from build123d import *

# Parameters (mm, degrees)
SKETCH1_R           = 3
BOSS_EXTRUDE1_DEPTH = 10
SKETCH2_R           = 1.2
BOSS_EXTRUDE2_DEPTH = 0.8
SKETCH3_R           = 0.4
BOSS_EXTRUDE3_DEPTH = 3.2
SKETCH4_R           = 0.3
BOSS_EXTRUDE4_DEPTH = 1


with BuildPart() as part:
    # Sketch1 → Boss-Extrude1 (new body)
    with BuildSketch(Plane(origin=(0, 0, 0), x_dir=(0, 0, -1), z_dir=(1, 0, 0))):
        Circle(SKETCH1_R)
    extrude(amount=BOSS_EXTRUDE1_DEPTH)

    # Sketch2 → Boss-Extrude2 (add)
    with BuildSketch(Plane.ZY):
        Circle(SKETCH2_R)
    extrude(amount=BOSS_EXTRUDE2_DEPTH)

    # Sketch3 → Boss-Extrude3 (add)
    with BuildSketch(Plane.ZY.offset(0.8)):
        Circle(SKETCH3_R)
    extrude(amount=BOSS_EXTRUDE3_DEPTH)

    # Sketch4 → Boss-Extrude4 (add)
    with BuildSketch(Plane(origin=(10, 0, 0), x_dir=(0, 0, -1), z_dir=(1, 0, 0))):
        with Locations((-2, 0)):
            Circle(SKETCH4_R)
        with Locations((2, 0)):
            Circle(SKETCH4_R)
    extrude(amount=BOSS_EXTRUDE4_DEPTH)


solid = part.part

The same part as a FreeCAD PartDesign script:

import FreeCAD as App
import Part
import Sketcher

V = App.Vector
Q = App.Units.Quantity

doc = App.newDocument("Part")
params = doc.addObject("Spreadsheet::Sheet", "Params")
for row, (alias, value) in enumerate([
    ("sketch1_diameter", "6 mm"),
    ("pad1_length", "10 mm"),
    ("sketch2_diameter", "2.4 mm"),
    ("pad2_length", "0.8 mm"),
    ("sketch3_diameter", "0.8 mm"),
    ("pad3_length", "3.2 mm"),
    ("sketch4_diameter", "0.6 mm"),
    ("pad4_length", "1 mm"),
], start=1):
    params.set(f"A{row}", alias)
    params.set(f"B{row}", "=" + value)
    params.setAlias(f"B{row}", alias)

body = doc.addObject("PartDesign::Body", "Body")

# Sketch on YZ plane
sketch1 = doc.addObject("Sketcher::SketchObject", "Sketch")
body.addObject(sketch1)
sketch1.AttachmentSupport = (doc.YZ_Plane, [""])
sketch1.MapMode = "FlatFace"
sketch1.addGeometry(Part.Circle(V(0, 0, 0), V(0, 0, 1), 3), False)
sketch1.addConstraint(Sketcher.Constraint("Coincident", 0, 3, -1, 1))
sketch1.addConstraint(Sketcher.Constraint("Diameter", 0, Q("6 mm")))
sketch1.setExpression("Constraints[1]", "Params.sketch1_diameter")
pad1 = doc.addObject("PartDesign::Pad", "Pad")
body.addObject(pad1)
pad1.Profile = sketch1
pad1.setExpression("Length", "Params.pad1_length")

# Sketch on YZ plane
sketch2 = doc.addObject("Sketcher::SketchObject", "Sketch001")
body.addObject(sketch2)
sketch2.AttachmentSupport = (doc.YZ_Plane, [""])
sketch2.MapMode = "FlatFace"
sketch2.addGeometry(Part.Circle(V(0, 0, 0), V(0, 0, 1), 1.2), False)
sketch2.addConstraint(Sketcher.Constraint("Coincident", 0, 3, -1, 1))
sketch2.addConstraint(Sketcher.Constraint("Diameter", 0, Q("2.4 mm")))
sketch2.setExpression("Constraints[1]", "Params.sketch2_diameter")
pad2 = doc.addObject("PartDesign::Pad", "Pad001")
body.addObject(pad2)
pad2.Profile = sketch2
pad2.setExpression("Length", "Params.pad2_length")
pad2.Reversed = True

# Sketch on YZ plane
sketch3 = doc.addObject("Sketcher::SketchObject", "Sketch002")
body.addObject(sketch3)
sketch3.AttachmentSupport = (doc.YZ_Plane, [""])
sketch3.MapMode = "FlatFace"
sketch3.AttachmentOffset = App.Placement(V(0, 0, -0.8), App.Rotation())
sketch3.addGeometry(Part.Circle(V(0, 0, 0), V(0, 0, 1), 0.4), False)
sketch3.addConstraint(Sketcher.Constraint("Coincident", 0, 3, -1, 1))
sketch3.addConstraint(Sketcher.Constraint("Diameter", 0, Q("0.8 mm")))
sketch3.setExpression("Constraints[1]", "Params.sketch3_diameter")
pad3 = doc.addObject("PartDesign::Pad", "Pad002")
body.addObject(pad3)
pad3.Profile = sketch3
pad3.setExpression("Length", "Params.pad3_length")
pad3.Reversed = True

# Sketch on YZ plane
sketch4 = doc.addObject("Sketcher::SketchObject", "Sketch003")
body.addObject(sketch4)
sketch4.AttachmentSupport = (doc.YZ_Plane, [""])
sketch4.MapMode = "FlatFace"
sketch4.AttachmentOffset = App.Placement(V(0, 0, 10), App.Rotation())
sketch4.addGeometry(Part.Circle(V(0, 2, 0), V(0, 0, 1), 0.3), False)
sketch4.addGeometry(Part.Circle(V(0, -2, 0), V(0, 0, 1), 0.3), False)
sketch4.addConstraint(Sketcher.Constraint("Equal", 0, 1))
sketch4.addConstraint(Sketcher.Constraint("Symmetric", 0, 3, 1, 3, -1, 1))
sketch4.addConstraint(Sketcher.Constraint("PointOnObject", 0, 3, -2))
sketch4.addConstraint(Sketcher.Constraint("Diameter", 0, Q("0.6 mm")))
sketch4.addConstraint(Sketcher.Constraint("DistanceY", -1, 1, 0, 3, Q("2 mm")))
sketch4.setExpression("Constraints[3]", "Params.sketch4_diameter")
pad4 = doc.addObject("PartDesign::Pad", "Pad003")
body.addObject(pad4)
pad4.Profile = sketch4
pad4.setExpression("Length", "Params.pad4_length")

doc.recompute()
